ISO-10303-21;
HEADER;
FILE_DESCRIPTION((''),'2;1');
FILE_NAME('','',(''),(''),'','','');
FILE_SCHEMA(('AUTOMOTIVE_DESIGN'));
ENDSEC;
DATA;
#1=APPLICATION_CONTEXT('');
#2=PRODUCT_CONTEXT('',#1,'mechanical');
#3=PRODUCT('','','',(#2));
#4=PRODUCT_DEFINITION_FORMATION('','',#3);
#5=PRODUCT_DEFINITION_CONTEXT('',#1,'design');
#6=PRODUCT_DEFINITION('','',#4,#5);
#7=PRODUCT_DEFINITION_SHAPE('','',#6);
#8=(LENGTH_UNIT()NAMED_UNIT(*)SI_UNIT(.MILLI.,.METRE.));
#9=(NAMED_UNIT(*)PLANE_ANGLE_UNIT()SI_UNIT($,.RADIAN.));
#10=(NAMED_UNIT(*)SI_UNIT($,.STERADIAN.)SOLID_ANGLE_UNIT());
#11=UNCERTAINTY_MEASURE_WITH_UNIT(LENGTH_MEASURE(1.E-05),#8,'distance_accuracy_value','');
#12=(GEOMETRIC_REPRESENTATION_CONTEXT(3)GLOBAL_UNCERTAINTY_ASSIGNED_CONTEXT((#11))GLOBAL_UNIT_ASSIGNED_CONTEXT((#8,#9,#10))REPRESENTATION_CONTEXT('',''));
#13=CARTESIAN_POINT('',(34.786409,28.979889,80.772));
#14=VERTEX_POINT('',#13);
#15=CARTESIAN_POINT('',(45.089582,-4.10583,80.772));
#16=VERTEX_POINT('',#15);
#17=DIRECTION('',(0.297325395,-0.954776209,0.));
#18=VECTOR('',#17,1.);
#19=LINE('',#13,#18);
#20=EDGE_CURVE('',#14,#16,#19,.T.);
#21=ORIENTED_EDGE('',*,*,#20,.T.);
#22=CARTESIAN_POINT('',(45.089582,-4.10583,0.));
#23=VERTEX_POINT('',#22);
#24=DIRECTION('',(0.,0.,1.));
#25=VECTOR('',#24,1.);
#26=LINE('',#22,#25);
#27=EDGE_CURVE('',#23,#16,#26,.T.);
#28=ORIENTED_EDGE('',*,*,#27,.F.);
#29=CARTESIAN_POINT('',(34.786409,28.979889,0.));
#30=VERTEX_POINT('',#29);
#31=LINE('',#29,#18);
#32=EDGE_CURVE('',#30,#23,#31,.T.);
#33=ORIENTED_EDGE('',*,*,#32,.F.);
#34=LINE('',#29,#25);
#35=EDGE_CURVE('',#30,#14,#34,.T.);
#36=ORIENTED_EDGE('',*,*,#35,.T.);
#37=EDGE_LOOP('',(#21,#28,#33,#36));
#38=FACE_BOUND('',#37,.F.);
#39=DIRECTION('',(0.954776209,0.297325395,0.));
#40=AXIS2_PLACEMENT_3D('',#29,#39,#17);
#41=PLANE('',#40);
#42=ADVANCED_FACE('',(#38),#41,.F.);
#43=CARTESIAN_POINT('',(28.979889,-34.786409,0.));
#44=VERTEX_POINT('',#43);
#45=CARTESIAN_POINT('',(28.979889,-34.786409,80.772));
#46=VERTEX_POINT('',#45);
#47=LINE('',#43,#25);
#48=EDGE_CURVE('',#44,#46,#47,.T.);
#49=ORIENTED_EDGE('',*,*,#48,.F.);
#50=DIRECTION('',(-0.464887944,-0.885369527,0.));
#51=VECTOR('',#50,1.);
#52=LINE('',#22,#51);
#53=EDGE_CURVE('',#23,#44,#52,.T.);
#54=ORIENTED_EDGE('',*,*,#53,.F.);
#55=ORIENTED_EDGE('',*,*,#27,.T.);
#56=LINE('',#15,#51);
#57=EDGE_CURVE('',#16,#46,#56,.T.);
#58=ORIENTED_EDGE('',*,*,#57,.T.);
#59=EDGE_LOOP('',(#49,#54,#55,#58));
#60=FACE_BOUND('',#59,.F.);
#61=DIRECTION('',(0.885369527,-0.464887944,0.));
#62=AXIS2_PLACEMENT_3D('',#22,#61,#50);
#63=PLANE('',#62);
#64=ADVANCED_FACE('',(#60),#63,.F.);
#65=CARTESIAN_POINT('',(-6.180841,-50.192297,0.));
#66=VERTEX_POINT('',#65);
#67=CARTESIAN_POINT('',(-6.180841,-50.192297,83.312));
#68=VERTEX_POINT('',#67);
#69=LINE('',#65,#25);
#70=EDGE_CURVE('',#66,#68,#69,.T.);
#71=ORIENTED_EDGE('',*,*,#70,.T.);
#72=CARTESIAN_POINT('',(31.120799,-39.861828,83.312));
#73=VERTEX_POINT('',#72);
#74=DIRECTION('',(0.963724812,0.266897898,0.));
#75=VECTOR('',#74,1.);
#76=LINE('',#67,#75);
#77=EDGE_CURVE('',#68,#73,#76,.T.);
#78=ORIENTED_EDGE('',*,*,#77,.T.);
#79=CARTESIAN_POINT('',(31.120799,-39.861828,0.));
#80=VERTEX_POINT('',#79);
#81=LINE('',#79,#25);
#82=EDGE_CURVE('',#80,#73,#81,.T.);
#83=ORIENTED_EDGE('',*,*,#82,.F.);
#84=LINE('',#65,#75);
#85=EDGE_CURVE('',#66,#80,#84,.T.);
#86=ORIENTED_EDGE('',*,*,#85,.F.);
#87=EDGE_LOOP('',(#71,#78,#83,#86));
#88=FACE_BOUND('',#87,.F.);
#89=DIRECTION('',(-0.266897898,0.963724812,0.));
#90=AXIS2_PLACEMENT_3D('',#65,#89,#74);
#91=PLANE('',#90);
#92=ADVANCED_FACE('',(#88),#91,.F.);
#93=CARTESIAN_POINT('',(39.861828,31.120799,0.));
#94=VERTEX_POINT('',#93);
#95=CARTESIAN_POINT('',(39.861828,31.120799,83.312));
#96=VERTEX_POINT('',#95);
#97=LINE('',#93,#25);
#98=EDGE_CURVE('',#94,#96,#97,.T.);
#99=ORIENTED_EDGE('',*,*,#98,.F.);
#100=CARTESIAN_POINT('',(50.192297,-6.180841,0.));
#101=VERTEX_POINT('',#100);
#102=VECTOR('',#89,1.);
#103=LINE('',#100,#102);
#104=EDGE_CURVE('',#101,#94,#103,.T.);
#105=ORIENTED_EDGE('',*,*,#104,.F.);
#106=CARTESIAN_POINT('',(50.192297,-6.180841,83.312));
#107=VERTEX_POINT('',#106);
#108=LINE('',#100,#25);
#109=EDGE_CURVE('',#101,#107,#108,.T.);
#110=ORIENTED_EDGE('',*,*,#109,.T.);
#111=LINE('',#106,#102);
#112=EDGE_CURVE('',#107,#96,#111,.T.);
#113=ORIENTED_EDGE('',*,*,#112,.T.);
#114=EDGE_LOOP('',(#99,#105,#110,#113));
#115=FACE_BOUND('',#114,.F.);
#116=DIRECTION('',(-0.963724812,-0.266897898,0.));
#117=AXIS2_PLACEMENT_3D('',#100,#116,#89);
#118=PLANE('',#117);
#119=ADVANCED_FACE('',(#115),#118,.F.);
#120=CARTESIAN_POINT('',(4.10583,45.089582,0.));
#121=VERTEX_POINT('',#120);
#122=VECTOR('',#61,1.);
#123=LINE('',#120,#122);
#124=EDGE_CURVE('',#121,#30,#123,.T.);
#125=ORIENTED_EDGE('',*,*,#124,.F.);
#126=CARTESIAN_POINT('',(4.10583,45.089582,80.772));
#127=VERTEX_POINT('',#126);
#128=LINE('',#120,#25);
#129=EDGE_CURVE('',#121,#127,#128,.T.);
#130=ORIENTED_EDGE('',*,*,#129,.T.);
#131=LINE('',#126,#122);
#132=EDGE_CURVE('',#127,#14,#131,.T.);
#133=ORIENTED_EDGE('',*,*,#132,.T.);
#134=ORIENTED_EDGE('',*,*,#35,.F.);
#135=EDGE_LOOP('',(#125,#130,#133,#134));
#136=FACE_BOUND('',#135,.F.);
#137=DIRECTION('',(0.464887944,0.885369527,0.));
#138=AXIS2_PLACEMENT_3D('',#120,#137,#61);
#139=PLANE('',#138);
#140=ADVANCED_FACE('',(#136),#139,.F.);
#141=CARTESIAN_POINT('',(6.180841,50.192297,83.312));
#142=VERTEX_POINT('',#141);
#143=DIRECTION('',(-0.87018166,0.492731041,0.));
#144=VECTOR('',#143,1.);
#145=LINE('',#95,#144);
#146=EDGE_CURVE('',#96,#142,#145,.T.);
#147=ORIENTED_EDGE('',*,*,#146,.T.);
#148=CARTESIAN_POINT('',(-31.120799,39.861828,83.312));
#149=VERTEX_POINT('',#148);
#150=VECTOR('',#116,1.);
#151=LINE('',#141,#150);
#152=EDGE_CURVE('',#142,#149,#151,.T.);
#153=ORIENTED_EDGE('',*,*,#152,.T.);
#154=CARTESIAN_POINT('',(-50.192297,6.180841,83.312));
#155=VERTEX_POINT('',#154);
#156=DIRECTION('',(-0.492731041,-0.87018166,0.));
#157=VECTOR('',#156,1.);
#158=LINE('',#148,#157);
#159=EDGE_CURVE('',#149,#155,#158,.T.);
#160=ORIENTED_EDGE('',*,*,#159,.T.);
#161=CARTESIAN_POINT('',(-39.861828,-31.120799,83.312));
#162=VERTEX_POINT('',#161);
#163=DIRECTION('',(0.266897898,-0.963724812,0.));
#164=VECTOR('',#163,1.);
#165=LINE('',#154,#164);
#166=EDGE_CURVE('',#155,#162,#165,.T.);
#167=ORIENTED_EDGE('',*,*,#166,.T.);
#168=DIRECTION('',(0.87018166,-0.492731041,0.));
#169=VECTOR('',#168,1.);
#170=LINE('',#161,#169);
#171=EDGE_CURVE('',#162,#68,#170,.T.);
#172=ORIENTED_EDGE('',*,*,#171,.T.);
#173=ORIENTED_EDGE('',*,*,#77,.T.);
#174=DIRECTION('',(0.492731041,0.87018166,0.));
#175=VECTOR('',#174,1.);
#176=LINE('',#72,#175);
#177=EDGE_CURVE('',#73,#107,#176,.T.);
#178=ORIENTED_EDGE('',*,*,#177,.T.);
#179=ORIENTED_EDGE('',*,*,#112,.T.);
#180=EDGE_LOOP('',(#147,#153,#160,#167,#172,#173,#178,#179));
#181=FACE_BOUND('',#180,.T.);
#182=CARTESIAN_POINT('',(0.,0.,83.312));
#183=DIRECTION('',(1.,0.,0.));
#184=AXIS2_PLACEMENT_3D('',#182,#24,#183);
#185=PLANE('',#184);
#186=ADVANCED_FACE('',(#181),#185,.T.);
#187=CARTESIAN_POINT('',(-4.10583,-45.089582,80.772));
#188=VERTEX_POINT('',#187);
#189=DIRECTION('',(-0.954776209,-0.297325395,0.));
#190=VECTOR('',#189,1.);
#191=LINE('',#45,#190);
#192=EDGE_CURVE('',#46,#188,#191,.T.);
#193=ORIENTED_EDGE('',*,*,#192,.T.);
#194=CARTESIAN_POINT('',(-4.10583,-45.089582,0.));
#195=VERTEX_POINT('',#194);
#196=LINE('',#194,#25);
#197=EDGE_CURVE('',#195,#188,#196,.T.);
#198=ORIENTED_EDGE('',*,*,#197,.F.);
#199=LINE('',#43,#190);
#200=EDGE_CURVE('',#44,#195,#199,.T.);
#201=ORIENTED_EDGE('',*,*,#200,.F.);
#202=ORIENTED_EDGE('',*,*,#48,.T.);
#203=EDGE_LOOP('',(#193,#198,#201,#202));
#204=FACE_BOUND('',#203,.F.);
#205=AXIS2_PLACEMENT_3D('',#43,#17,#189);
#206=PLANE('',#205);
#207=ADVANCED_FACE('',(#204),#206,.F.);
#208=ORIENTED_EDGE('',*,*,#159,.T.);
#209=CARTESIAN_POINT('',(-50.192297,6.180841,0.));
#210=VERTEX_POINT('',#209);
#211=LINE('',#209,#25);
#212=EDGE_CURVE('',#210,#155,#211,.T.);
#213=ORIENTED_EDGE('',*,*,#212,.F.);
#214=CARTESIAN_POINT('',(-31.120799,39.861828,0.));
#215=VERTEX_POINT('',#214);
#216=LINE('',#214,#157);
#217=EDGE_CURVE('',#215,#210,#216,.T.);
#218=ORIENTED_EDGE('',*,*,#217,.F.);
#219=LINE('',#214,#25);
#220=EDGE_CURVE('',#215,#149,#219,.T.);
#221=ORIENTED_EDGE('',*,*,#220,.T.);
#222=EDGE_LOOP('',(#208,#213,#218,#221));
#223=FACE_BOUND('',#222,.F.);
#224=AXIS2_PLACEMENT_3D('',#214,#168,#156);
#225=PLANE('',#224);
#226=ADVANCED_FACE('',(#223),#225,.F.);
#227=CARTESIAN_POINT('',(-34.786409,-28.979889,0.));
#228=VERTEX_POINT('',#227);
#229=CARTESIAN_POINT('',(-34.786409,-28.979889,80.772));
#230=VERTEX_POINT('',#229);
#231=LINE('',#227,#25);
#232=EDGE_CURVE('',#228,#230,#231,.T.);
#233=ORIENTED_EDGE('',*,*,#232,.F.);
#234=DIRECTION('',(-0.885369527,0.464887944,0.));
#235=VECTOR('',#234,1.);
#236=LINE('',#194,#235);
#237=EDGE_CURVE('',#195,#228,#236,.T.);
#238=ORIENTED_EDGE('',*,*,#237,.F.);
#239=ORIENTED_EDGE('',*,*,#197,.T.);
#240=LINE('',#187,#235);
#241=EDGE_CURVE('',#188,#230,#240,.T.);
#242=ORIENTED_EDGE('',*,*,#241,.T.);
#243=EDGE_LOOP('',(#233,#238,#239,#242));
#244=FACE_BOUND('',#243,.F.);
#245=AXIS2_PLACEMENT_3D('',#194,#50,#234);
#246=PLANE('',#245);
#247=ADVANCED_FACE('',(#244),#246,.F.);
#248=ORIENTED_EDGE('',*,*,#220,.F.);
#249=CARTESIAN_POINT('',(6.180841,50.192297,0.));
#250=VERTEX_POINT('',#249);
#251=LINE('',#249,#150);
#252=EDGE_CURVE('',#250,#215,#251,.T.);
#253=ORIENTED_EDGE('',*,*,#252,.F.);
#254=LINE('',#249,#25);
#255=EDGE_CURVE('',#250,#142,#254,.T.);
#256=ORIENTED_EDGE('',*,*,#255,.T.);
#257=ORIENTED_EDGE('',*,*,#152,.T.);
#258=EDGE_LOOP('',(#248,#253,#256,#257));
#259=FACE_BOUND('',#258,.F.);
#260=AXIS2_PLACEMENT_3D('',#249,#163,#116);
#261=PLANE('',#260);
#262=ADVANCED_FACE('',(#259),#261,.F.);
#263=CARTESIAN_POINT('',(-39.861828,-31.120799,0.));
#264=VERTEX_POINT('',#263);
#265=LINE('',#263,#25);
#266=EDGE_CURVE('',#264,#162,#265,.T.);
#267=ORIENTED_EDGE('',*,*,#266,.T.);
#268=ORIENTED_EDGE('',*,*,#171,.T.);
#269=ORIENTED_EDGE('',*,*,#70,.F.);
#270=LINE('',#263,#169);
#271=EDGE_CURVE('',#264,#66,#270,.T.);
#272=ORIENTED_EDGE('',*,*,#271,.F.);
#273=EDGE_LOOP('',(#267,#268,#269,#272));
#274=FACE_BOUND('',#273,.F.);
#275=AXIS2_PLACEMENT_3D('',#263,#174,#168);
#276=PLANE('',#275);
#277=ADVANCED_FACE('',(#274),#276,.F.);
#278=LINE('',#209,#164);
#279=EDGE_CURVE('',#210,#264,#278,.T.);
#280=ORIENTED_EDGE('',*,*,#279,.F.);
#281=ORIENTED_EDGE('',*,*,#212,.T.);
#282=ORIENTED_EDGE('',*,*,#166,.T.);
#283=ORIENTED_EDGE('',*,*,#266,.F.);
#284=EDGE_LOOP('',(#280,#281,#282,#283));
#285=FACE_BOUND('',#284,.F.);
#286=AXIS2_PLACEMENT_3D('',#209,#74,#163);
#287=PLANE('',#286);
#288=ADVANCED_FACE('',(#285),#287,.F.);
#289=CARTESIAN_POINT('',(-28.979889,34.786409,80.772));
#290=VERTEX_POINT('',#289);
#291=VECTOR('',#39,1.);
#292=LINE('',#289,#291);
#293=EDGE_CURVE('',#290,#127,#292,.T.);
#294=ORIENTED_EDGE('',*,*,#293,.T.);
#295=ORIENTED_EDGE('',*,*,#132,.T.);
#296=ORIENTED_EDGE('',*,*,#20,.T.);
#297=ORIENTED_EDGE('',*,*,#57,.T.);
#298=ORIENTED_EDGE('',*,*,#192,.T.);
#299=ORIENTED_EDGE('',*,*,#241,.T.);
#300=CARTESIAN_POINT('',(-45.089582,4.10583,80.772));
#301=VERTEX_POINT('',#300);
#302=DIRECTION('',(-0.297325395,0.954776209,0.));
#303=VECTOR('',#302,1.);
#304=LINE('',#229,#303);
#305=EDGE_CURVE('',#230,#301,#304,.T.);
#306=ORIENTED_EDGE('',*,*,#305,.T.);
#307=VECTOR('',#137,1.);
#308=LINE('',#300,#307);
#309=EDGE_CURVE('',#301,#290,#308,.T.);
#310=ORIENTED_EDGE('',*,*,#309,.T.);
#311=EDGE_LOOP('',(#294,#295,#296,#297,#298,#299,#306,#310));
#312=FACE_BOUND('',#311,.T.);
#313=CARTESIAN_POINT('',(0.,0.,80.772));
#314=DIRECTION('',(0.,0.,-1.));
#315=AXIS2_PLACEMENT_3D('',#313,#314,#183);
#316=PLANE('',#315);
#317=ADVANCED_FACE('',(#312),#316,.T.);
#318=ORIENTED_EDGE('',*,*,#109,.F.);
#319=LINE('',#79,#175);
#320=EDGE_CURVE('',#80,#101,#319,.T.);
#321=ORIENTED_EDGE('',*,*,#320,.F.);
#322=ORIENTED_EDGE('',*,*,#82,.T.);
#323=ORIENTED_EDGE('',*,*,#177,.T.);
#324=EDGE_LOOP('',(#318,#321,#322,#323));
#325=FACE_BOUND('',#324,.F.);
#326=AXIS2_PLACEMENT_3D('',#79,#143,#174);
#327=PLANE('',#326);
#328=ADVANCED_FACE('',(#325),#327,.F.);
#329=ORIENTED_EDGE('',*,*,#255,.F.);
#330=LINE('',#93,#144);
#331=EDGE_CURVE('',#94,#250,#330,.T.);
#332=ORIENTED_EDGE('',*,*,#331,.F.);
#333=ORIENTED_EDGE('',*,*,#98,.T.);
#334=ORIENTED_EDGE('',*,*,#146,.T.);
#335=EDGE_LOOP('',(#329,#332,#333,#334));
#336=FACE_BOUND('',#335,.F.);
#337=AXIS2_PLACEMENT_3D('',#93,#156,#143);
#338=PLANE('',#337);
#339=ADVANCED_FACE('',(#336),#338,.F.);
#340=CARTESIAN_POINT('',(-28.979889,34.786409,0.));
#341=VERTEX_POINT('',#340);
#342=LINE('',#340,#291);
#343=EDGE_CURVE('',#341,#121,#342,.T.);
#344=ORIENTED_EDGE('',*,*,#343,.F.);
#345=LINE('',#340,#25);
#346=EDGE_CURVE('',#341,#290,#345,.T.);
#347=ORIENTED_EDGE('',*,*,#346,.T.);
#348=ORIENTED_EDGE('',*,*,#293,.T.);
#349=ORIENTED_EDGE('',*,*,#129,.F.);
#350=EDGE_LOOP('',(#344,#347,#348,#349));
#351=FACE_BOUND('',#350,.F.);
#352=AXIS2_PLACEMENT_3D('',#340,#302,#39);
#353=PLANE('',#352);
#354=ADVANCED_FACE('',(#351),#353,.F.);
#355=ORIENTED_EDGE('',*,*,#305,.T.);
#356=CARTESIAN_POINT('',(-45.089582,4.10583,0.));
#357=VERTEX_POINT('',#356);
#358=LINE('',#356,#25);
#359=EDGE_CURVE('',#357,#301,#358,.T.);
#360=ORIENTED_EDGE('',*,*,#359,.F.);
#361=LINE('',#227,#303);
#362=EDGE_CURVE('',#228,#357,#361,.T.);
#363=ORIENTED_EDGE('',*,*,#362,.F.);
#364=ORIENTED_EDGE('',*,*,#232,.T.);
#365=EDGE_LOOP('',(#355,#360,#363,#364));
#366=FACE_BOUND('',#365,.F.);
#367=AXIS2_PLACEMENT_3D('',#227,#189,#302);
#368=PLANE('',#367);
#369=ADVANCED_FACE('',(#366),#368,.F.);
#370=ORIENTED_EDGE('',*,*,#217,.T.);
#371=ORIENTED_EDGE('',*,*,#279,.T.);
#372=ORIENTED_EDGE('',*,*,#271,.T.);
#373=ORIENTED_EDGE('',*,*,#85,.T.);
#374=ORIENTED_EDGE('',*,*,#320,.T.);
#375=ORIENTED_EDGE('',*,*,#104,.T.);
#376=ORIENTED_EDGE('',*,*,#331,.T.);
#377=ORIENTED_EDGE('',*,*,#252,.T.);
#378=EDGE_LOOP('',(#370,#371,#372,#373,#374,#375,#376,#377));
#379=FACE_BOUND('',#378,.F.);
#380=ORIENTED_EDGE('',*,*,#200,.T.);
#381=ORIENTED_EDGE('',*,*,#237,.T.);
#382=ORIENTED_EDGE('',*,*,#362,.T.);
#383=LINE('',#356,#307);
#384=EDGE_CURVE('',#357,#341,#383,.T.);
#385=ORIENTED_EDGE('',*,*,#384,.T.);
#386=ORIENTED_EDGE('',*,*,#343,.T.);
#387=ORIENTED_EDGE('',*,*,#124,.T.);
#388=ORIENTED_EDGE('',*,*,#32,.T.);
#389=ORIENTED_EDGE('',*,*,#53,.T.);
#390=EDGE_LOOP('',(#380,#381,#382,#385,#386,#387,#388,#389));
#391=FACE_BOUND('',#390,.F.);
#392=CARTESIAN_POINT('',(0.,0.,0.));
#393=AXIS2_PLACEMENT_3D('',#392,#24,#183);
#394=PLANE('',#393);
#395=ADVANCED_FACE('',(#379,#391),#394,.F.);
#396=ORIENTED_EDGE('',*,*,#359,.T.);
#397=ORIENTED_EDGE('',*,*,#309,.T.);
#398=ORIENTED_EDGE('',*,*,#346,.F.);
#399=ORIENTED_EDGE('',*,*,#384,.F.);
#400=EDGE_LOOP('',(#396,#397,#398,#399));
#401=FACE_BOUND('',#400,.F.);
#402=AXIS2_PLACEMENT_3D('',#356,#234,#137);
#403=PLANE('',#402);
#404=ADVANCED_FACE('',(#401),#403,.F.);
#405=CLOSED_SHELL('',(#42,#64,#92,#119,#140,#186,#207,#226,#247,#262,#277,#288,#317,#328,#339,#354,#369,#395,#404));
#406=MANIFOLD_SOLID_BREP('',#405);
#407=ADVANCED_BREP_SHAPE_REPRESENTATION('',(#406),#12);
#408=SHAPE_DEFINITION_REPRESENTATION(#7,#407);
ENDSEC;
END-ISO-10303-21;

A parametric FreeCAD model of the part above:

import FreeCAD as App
import Part
import Sketcher

V = App.Vector
Q = App.Units.Quantity

doc = App.newDocument("Part")
body = doc.addObject("PartDesign::Body", "Body")

# Sketch on XY plane
sketch1 = body.newObject("Sketcher::SketchObject", "Sketch")
sketch1.AttachmentSupport = (doc.getObject("XY_Plane"), [""])
sketch1.MapMode = "FlatFace"
sketch1.addGeometry([
    Part.LineSegment(V(-31, 40, 0), V(-50, 6, 0)),  # 0
    Part.LineSegment(V(-50, 6, 0), V(-40, -31, 0)),  # 1
    Part.LineSegment(V(-40, -31, 0), V(-6, -50, 0)),  # 2
    Part.LineSegment(V(-6, -50, 0), V(31, -40, 0)),  # 3
    Part.LineSegment(V(31, -40, 0), V(50, -6, 0)),  # 4
    Part.LineSegment(V(50, -6, 0), V(40, 31, 0)),  # 5
    Part.LineSegment(V(40, 31, 0), V(6, 50, 0)),  # 6
    Part.LineSegment(V(6, 50, 0), V(-31, 40, 0)),  # 7
], False)
sketch1.addConstraint([
    Sketcher.Constraint("Coincident", 0, 2, 1, 1),
    Sketcher.Constraint("Coincident", 1, 2, 2, 1),
    Sketcher.Constraint("Coincident", 2, 2, 3, 1),
    Sketcher.Constraint("Coincident", 3, 2, 4, 1),
    Sketcher.Constraint("Coincident", 4, 2, 5, 1),
    Sketcher.Constraint("Coincident", 5, 2, 6, 1),
    Sketcher.Constraint("Coincident", 6, 2, 7, 1),
    Sketcher.Constraint("Coincident", 7, 2, 0, 1),
    Sketcher.Constraint("Symmetric", 0, 2, 4, 2, -1, 1),
    Sketcher.Constraint("Symmetric", 1, 2, 5, 2, -1, 1),
    Sketcher.Constraint("Symmetric", 2, 2, 6, 2, -1, 1),
    Sketcher.Constraint("Symmetric", 3, 2, 7, 2, -1, 1),
    Sketcher.Constraint("Perpendicular", 0, 2),
    Sketcher.Constraint("Perpendicular", 1, 3),
    Sketcher.Constraint("Equal", 0, 1),
    Sketcher.Constraint("Equal", 1, 2),
    Sketcher.Constraint("Equal", 2, 3),
    Sketcher.Constraint("DistanceY", 1, 2, -1, 1, Q("31.120799 mm")),
    Sketcher.Constraint("DistanceY", 2, 2, 1, 2, Q("19.071498 mm")),
    Sketcher.Constraint("DistanceY", -1, 1, 0, 2, Q("6.180841 mm")),
])
pad1 = body.newObject("PartDesign::Pad", "Pad")
pad1.Profile = sketch1
pad1.Length = Q("3.28 in")

# Sketch on XY plane
sketch2 = body.newObject("Sketcher::SketchObject", "Sketch001")
sketch2.AttachmentSupport = (doc.getObject("XY_Plane"), [""])
sketch2.MapMode = "FlatFace"
sketch2.addGeometry([
    Part.LineSegment(V(-4, -45, 0), V(-35, -29, 0)),  # 0
    Part.LineSegment(V(-35, -29, 0), V(-45, 4, 0)),  # 1
    Part.LineSegment(V(-45, 4, 0), V(-29, 35, 0)),  # 2
    Part.LineSegment(V(-29, 35, 0), V(4, 45, 0)),  # 3
    Part.LineSegment(V(4, 45, 0), V(35, 29, 0)),  # 4
    Part.LineSegment(V(35, 29, 0), V(45, -4, 0)),  # 5
    Part.LineSegment(V(45, -4, 0), V(29, -35, 0)),  # 6
    Part.LineSegment(V(29, -35, 0), V(-4, -45, 0)),  # 7
], False)
sketch2.addConstraint([
    Sketcher.Constraint("Coincident", 0, 2, 1, 1),
    Sketcher.Constraint("Coincident", 1, 2, 2, 1),
    Sketcher.Constraint("Coincident", 2, 2, 3, 1),
    Sketcher.Constraint("Coincident", 3, 2, 4, 1),
    Sketcher.Constraint("Coincident", 4, 2, 5, 1),
    Sketcher.Constraint("Coincident", 5, 2, 6, 1),
    Sketcher.Constraint("Coincident", 6, 2, 7, 1),
    Sketcher.Constraint("Coincident", 7, 2, 0, 1),
    Sketcher.Constraint("Symmetric", 0, 2, 4, 2, -1, 1),
    Sketcher.Constraint("Symmetric", 1, 2, 5, 2, -1, 1),
    Sketcher.Constraint("Symmetric", 2, 2, 6, 2, -1, 1),
    Sketcher.Constraint("Symmetric", 3, 2, 7, 2, -1, 1),
    Sketcher.Constraint("Perpendicular", 0, 2),
    Sketcher.Constraint("Perpendicular", 1, 3),
    Sketcher.Constraint("Equal", 0, 1),
    Sketcher.Constraint("Equal", 1, 2),
    Sketcher.Constraint("Equal", 2, 3),
    Sketcher.Constraint("Distance", 0, Q("34.652852 mm")),
    Sketcher.Constraint("DistanceX", 0, 2, -1, 1, Q("34.786409 mm")),
    Sketcher.Constraint("DistanceY", 0, 2, -1, 1, Q("28.979889 mm")),
])
pocket1 = body.newObject("PartDesign::Pocket", "Pocket")
pocket1.Profile = sketch2
pocket1.Length = Q("3.18 in")
pocket1.Reversed = True

doc.recompute()
